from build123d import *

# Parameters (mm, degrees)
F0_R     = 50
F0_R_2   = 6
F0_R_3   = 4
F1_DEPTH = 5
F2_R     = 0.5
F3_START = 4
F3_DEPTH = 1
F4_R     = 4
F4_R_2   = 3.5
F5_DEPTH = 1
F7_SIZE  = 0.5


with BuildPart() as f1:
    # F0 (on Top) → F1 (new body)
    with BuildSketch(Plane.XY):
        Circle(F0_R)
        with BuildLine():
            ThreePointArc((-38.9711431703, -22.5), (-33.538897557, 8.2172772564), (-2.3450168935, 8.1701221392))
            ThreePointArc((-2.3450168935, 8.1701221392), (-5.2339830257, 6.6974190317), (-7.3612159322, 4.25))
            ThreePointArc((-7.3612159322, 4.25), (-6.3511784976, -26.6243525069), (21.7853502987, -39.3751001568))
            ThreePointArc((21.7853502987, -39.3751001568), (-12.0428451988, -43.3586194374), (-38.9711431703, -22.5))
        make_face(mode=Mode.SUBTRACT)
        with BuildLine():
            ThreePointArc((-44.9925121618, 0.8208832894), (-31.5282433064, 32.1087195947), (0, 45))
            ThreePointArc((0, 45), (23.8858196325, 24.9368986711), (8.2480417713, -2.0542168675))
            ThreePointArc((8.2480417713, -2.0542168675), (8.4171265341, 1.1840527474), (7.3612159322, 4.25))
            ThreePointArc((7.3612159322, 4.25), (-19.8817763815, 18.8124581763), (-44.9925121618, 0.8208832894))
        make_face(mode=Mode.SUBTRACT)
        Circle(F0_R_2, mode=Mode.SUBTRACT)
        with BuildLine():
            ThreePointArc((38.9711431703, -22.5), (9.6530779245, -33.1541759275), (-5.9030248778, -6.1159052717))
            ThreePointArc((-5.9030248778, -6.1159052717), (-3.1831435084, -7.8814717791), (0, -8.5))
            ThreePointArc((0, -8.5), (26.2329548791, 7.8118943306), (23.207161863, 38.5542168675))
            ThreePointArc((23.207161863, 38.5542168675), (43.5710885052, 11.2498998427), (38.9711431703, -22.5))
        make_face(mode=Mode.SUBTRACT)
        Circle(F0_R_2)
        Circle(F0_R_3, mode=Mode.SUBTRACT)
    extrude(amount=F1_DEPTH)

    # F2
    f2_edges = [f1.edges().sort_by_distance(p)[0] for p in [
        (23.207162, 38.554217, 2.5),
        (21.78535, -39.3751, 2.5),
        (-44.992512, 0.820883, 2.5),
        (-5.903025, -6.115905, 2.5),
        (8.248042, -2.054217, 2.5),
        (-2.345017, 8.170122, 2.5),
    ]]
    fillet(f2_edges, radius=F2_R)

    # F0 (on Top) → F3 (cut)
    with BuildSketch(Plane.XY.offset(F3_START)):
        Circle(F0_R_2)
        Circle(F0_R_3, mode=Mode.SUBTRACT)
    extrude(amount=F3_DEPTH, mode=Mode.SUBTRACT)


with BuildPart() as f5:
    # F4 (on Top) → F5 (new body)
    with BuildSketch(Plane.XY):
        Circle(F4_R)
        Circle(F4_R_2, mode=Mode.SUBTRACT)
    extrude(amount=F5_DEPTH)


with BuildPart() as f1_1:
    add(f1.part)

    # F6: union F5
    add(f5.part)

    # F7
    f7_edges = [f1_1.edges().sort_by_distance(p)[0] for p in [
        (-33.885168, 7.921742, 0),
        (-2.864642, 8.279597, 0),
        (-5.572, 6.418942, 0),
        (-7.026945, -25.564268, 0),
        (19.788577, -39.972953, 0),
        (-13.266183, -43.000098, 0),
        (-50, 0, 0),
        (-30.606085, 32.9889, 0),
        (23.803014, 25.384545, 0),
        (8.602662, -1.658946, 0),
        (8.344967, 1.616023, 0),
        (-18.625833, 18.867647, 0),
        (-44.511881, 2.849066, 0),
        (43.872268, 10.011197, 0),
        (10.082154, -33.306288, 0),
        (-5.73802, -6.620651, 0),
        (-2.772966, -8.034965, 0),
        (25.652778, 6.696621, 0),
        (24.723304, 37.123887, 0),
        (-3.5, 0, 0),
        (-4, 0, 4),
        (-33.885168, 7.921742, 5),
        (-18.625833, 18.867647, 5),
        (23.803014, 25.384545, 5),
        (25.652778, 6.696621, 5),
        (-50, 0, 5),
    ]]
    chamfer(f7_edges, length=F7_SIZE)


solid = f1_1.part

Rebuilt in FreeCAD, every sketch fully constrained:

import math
import FreeCAD as App
import Part
import Sketcher


def edges_at(feature, points):
    """Names of the edges that pass closest to the given points."""
    edges = feature.Shape.Edges
    near = lambda p: min(range(len(edges)), key=lambda i: edges[i].distToShape(Part.Vertex(*p))[0])
    return sorted({f"Edge{near(p) + 1}" for p in points})

doc = App.newDocument("Part")
body = doc.addObject("PartDesign::Body", "Body")

# Sketch on XY plane
sketch1 = body.newObject("Sketcher::SketchObject", "Sketch")
sketch1.AttachmentSupport = (doc.getObject("XY_Plane"), [""])
sketch1.MapMode = "FlatFace"
sketch1.addGeometry(Part.Circle(App.Vector(0, 0, 0), App.Vector(0, 0, 1), 50), False)
sketch1.addGeometry(Part.ArcOfCircle(Part.Circle(App.Vector(0, 0, 0), App.Vector(0, 0, 1), 45), math.radians(-150), math.radians(-61.045239)), False)
sketch1.addGeometry(Part.ArcOfCircle(Part.Circle(App.Vector(-17.970027, -10.375, 0), App.Vector(0, 0, 1), 24.25), math.radians(49.884516), math.radians(210)), False)
sketch1.addGeometry(Part.ArcOfCircle(Part.Circle(App.Vector(0, 0, 0), App.Vector(0, 0, 1), 8.5), math.radians(106.014722), math.radians(150)), False)
sketch1.addGeometry(Part.ArcOfCircle(Part.Circle(App.Vector(17.970027, -10.375, 0), App.Vector(0, 0, 1), 29.25), math.radians(150), math.radians(277.494926)), False)
sketch1.addGeometry(Part.Circle(App.Vector(0, 0, 0), App.Vector(0, 0, 1), 4), False)
sketch1.addGeometry(Part.ArcOfCircle(Part.Circle(App.Vector(-17.970027, -10.375, 0), App.Vector(0, 0, 1), 29.25), math.radians(30), math.radians(157.494926)), False)
sketch1.addGeometry(Part.ArcOfCircle(Part.Circle(App.Vector(0, 0, 0), App.Vector(0, 0, 1), 45), math.radians(90), math.radians(178.954761)), False)
sketch1.addGeometry(Part.ArcOfCircle(Part.Circle(App.Vector(0, 20.75, 0), App.Vector(0, 0, 1), 24.25), math.radians(-70.115484), math.radians(90)), False)
sketch1.addGeometry(Part.ArcOfCircle(Part.Circle(App.Vector(0, 0, 0), App.Vector(0, 0, 1), 8.5), math.radians(-13.985278), math.radians(30)), False)
sketch1.addGeometry(Part.ArcOfCircle(Part.Circle(App.Vector(0, 0, 0), App.Vector(0, 0, 1), 45), math.radians(-30), math.radians(58.954761)), False)
sketch1.addGeometry(Part.ArcOfCircle(Part.Circle(App.Vector(17.970027, -10.375, 0), App.Vector(0, 0, 1), 24.25), math.radians(169.884516), math.radians(330)), False)
sketch1.addGeometry(Part.ArcOfCircle(Part.Circle(App.Vector(0, 0, 0), App.Vector(0, 0, 1), 8.5), math.radians(-133.985278), math.radians(-90)), False)
sketch1.addGeometry(Part.ArcOfCircle(Part.Circle(App.Vector(0, 20.75, 0), App.Vector(0, 0, 1), 29.25), math.radians(-90), math.radians(37.494926)), False)
sketch1.addConstraint(Sketcher.Constraint("Tangent", 1, 1, 2, 2))
sketch1.addConstraint(Sketcher.Constraint("Coincident", 2, 1, 3, 1))
sketch1.addConstraint(Sketcher.Constraint("Tangent", 3, 2, 4, 1))
sketch1.addConstraint(Sketcher.Constraint("Coincident", 4, 2, 1, 2))
sketch1.addConstraint(Sketcher.Constraint("Coincident", 6, 2, 7, 2))
sketch1.addConstraint(Sketcher.Constraint("Tangent", 7, 1, 8, 2))
sketch1.addConstraint(Sketcher.Constraint("Coincident", 8, 1, 9, 1))
sketch1.addConstraint(Sketcher.Constraint("Tangent", 9, 2, 6, 1))
sketch1.addConstraint(Sketcher.Constraint("Tangent", 10, 1, 11, 2))
sketch1.addConstraint(Sketcher.Constraint("Coincident", 11, 1, 12, 1))
sketch1.addConstraint(Sketcher.Constraint("Tangent", 12, 2, 13, 1))
sketch1.addConstraint(Sketcher.Constraint("Coincident", 13, 2, 10, 2))
sketch1.addConstraint(Sketcher.Constraint("Coincident", 0, 3, -1, 1))
sketch1.addConstraint(Sketcher.Constraint("Coincident", 1, 3, -1, 1))
sketch1.addConstraint(Sketcher.Constraint("Coincident", 3, 3, -1, 1))
sketch1.addConstraint(Sketcher.Constraint("Coincident", 5, 3, -1, 1))
sketch1.addConstraint(Sketcher.Constraint("Coincident", 7, 3, -1, 1))
sketch1.addConstraint(Sketcher.Constraint("Coincident", 9, 3, -1, 1))
sketch1.addConstraint(Sketcher.Constraint("Coincident", 10, 3, -1, 1))
sketch1.addConstraint(Sketcher.Constraint("Coincident", 12, 3, -1, 1))
sketch1.addConstraint(Sketcher.Constraint("Coincident", 6, 3, 2, 3))
sketch1.addConstraint(Sketcher.Constraint("Coincident", 11, 3, 4, 3))
sketch1.addConstraint(Sketcher.Constraint("Coincident", 13, 3, 8, 3))
sketch1.addConstraint(Sketcher.Constraint("Equal", 4, 6))
sketch1.addConstraint(Sketcher.Constraint("Equal", 1, 7))
sketch1.addConstraint(Sketcher.Constraint("Equal", 2, 8))
sketch1.addConstraint(Sketcher.Constraint("Equal", 3, 9))
sketch1.addConstraint(Sketcher.Constraint("Equal", 7, 10))
sketch1.addConstraint(Sketcher.Constraint("Equal", 9, 12))
sketch1.addConstraint(Sketcher.Constraint("PointOnObject", 8, 3, -2))
sketch1.addConstraint(Sketcher.Constraint("Horizontal", 2, 3, 4, 3))
sketch1.addConstraint(Sketcher.Constraint("Diameter", 0, 100.0))
sketch1.addConstraint(Sketcher.Constraint("Diameter", 5, 8.0))
sketch1.addConstraint(Sketcher.Constraint("Radius", 1, 45.0))
sketch1.addConstraint(Sketcher.Constraint("Radius", 3, 8.5))
sketch1.addConstraint(Sketcher.Constraint("Radius", 2, 24.25))
sketch1.addConstraint(Sketcher.Constraint("DistanceY", 1, 1, -1, 1, 22.5))
pad1 = body.newObject("PartDesign::Pad", "Pad")
pad1.Profile = sketch1
pad1.Length = 5
doc.recompute()

fillet = body.newObject("PartDesign::Fillet", "Fillet")
fillet.Base = (pad1, edges_at(pad1, [
    (23.207, 38.554, 2.5),
    (21.785, -39.375, 2.5),
    (-44.993, 0.821, 2.5),
    (-5.903, -6.116, 2.5),
    (8.248, -2.054, 2.5),
    (-2.345, 8.17, 2.5),
]))
fillet.Radius = 0.5

# Sketch on XY plane
sketch2 = body.newObject("Sketcher::SketchObject", "Sketch001")
sketch2.AttachmentSupport = (doc.getObject("XY_Plane"), [""])
sketch2.MapMode = "FlatFace"
sketch2.AttachmentOffset = App.Placement(App.Vector(0, 0, 4), App.Rotation())
sketch2.addGeometry(Part.Circle(App.Vector(0, 0, 0), App.Vector(0, 0, 1), 6), False)
sketch2.addGeometry(Part.Circle(App.Vector(0, 0, 0), App.Vector(0, 0, 1), 4), False)
sketch2.addConstraint(Sketcher.Constraint("Coincident", 0, 3, -1, 1))
sketch2.addConstraint(Sketcher.Constraint("Coincident", 1, 3, -1, 1))
sketch2.addConstraint(Sketcher.Constraint("Diameter", 0, 12.0))
sketch2.addConstraint(Sketcher.Constraint("Diameter", 1, 8.0))
pocket1 = body.newObject("PartDesign::Pocket", "Pocket")
pocket1.Profile = sketch2
pocket1.Length = 1
pocket1.Reversed = True
body2 = doc.addObject("PartDesign::Body", "Body001")

# Sketch on XY plane
sketch3 = body2.newObject("Sketcher::SketchObject", "Sketch002")
sketch3.AttachmentSupport = (doc.getObject("XY_Plane001"), [""])
sketch3.MapMode = "FlatFace"
sketch3.addGeometry(Part.Circle(App.Vector(0, 0, 0), App.Vector(0, 0, 1), 4), False)
sketch3.addGeometry(Part.Circle(App.Vector(0, 0, 0), App.Vector(0, 0, 1), 3.5), False)
sketch3.addConstraint(Sketcher.Constraint("Coincident", 0, 3, -1, 1))
sketch3.addConstraint(Sketcher.Constraint("Coincident", 1, 3, -1, 1))
sketch3.addConstraint(Sketcher.Constraint("Diameter", 0, 8.0))
sketch3.addConstraint(Sketcher.Constraint("Diameter", 1, 7.0))
pad2 = body2.newObject("PartDesign::Pad", "Pad001")
pad2.Profile = sketch3
pad2.Length = 1
doc.recompute()

boolean = body.newObject("PartDesign::Boolean", "Boolean")
boolean.Type = "Fuse"
boolean.addObjects([body2])
doc.recompute()

chamfer = body.newObject("PartDesign::Chamfer", "Chamfer")
chamfer.Base = (boolean, edges_at(boolean, [
    (-33.885, 7.922, 0),
    (-2.865, 8.28, 0),
    (-5.572, 6.419, 0),
    (-7.027, -25.564, 0),
    (19.789, -39.973, 0),
    (-13.266, -43, 0),
    (-50, 0, 0),
    (-30.606, 32.989, 0),
    (23.803, 25.385, 0),
    (8.603, -1.659, 0),
    (8.345, 1.616, 0),
    (-18.626, 18.868, 0),
    (-44.512, 2.849, 0),
    (43.872, 10.011, 0),
    (10.082, -33.306, 0),
    (-5.738, -6.621, 0),
    (-2.773, -8.035, 0),
    (25.653, 6.697, 0),
    (24.723, 37.124, 0),
    (-3.5, 0, 0),
    (-4, 0, 4),
    (-33.885, 7.922, 5),
    (-18.626, 18.868, 5),
    (23.803, 25.385, 5),
    (25.653, 6.697, 5),
    (-50, 0, 5),
]))
chamfer.Size = 0.5

doc.recompute()
